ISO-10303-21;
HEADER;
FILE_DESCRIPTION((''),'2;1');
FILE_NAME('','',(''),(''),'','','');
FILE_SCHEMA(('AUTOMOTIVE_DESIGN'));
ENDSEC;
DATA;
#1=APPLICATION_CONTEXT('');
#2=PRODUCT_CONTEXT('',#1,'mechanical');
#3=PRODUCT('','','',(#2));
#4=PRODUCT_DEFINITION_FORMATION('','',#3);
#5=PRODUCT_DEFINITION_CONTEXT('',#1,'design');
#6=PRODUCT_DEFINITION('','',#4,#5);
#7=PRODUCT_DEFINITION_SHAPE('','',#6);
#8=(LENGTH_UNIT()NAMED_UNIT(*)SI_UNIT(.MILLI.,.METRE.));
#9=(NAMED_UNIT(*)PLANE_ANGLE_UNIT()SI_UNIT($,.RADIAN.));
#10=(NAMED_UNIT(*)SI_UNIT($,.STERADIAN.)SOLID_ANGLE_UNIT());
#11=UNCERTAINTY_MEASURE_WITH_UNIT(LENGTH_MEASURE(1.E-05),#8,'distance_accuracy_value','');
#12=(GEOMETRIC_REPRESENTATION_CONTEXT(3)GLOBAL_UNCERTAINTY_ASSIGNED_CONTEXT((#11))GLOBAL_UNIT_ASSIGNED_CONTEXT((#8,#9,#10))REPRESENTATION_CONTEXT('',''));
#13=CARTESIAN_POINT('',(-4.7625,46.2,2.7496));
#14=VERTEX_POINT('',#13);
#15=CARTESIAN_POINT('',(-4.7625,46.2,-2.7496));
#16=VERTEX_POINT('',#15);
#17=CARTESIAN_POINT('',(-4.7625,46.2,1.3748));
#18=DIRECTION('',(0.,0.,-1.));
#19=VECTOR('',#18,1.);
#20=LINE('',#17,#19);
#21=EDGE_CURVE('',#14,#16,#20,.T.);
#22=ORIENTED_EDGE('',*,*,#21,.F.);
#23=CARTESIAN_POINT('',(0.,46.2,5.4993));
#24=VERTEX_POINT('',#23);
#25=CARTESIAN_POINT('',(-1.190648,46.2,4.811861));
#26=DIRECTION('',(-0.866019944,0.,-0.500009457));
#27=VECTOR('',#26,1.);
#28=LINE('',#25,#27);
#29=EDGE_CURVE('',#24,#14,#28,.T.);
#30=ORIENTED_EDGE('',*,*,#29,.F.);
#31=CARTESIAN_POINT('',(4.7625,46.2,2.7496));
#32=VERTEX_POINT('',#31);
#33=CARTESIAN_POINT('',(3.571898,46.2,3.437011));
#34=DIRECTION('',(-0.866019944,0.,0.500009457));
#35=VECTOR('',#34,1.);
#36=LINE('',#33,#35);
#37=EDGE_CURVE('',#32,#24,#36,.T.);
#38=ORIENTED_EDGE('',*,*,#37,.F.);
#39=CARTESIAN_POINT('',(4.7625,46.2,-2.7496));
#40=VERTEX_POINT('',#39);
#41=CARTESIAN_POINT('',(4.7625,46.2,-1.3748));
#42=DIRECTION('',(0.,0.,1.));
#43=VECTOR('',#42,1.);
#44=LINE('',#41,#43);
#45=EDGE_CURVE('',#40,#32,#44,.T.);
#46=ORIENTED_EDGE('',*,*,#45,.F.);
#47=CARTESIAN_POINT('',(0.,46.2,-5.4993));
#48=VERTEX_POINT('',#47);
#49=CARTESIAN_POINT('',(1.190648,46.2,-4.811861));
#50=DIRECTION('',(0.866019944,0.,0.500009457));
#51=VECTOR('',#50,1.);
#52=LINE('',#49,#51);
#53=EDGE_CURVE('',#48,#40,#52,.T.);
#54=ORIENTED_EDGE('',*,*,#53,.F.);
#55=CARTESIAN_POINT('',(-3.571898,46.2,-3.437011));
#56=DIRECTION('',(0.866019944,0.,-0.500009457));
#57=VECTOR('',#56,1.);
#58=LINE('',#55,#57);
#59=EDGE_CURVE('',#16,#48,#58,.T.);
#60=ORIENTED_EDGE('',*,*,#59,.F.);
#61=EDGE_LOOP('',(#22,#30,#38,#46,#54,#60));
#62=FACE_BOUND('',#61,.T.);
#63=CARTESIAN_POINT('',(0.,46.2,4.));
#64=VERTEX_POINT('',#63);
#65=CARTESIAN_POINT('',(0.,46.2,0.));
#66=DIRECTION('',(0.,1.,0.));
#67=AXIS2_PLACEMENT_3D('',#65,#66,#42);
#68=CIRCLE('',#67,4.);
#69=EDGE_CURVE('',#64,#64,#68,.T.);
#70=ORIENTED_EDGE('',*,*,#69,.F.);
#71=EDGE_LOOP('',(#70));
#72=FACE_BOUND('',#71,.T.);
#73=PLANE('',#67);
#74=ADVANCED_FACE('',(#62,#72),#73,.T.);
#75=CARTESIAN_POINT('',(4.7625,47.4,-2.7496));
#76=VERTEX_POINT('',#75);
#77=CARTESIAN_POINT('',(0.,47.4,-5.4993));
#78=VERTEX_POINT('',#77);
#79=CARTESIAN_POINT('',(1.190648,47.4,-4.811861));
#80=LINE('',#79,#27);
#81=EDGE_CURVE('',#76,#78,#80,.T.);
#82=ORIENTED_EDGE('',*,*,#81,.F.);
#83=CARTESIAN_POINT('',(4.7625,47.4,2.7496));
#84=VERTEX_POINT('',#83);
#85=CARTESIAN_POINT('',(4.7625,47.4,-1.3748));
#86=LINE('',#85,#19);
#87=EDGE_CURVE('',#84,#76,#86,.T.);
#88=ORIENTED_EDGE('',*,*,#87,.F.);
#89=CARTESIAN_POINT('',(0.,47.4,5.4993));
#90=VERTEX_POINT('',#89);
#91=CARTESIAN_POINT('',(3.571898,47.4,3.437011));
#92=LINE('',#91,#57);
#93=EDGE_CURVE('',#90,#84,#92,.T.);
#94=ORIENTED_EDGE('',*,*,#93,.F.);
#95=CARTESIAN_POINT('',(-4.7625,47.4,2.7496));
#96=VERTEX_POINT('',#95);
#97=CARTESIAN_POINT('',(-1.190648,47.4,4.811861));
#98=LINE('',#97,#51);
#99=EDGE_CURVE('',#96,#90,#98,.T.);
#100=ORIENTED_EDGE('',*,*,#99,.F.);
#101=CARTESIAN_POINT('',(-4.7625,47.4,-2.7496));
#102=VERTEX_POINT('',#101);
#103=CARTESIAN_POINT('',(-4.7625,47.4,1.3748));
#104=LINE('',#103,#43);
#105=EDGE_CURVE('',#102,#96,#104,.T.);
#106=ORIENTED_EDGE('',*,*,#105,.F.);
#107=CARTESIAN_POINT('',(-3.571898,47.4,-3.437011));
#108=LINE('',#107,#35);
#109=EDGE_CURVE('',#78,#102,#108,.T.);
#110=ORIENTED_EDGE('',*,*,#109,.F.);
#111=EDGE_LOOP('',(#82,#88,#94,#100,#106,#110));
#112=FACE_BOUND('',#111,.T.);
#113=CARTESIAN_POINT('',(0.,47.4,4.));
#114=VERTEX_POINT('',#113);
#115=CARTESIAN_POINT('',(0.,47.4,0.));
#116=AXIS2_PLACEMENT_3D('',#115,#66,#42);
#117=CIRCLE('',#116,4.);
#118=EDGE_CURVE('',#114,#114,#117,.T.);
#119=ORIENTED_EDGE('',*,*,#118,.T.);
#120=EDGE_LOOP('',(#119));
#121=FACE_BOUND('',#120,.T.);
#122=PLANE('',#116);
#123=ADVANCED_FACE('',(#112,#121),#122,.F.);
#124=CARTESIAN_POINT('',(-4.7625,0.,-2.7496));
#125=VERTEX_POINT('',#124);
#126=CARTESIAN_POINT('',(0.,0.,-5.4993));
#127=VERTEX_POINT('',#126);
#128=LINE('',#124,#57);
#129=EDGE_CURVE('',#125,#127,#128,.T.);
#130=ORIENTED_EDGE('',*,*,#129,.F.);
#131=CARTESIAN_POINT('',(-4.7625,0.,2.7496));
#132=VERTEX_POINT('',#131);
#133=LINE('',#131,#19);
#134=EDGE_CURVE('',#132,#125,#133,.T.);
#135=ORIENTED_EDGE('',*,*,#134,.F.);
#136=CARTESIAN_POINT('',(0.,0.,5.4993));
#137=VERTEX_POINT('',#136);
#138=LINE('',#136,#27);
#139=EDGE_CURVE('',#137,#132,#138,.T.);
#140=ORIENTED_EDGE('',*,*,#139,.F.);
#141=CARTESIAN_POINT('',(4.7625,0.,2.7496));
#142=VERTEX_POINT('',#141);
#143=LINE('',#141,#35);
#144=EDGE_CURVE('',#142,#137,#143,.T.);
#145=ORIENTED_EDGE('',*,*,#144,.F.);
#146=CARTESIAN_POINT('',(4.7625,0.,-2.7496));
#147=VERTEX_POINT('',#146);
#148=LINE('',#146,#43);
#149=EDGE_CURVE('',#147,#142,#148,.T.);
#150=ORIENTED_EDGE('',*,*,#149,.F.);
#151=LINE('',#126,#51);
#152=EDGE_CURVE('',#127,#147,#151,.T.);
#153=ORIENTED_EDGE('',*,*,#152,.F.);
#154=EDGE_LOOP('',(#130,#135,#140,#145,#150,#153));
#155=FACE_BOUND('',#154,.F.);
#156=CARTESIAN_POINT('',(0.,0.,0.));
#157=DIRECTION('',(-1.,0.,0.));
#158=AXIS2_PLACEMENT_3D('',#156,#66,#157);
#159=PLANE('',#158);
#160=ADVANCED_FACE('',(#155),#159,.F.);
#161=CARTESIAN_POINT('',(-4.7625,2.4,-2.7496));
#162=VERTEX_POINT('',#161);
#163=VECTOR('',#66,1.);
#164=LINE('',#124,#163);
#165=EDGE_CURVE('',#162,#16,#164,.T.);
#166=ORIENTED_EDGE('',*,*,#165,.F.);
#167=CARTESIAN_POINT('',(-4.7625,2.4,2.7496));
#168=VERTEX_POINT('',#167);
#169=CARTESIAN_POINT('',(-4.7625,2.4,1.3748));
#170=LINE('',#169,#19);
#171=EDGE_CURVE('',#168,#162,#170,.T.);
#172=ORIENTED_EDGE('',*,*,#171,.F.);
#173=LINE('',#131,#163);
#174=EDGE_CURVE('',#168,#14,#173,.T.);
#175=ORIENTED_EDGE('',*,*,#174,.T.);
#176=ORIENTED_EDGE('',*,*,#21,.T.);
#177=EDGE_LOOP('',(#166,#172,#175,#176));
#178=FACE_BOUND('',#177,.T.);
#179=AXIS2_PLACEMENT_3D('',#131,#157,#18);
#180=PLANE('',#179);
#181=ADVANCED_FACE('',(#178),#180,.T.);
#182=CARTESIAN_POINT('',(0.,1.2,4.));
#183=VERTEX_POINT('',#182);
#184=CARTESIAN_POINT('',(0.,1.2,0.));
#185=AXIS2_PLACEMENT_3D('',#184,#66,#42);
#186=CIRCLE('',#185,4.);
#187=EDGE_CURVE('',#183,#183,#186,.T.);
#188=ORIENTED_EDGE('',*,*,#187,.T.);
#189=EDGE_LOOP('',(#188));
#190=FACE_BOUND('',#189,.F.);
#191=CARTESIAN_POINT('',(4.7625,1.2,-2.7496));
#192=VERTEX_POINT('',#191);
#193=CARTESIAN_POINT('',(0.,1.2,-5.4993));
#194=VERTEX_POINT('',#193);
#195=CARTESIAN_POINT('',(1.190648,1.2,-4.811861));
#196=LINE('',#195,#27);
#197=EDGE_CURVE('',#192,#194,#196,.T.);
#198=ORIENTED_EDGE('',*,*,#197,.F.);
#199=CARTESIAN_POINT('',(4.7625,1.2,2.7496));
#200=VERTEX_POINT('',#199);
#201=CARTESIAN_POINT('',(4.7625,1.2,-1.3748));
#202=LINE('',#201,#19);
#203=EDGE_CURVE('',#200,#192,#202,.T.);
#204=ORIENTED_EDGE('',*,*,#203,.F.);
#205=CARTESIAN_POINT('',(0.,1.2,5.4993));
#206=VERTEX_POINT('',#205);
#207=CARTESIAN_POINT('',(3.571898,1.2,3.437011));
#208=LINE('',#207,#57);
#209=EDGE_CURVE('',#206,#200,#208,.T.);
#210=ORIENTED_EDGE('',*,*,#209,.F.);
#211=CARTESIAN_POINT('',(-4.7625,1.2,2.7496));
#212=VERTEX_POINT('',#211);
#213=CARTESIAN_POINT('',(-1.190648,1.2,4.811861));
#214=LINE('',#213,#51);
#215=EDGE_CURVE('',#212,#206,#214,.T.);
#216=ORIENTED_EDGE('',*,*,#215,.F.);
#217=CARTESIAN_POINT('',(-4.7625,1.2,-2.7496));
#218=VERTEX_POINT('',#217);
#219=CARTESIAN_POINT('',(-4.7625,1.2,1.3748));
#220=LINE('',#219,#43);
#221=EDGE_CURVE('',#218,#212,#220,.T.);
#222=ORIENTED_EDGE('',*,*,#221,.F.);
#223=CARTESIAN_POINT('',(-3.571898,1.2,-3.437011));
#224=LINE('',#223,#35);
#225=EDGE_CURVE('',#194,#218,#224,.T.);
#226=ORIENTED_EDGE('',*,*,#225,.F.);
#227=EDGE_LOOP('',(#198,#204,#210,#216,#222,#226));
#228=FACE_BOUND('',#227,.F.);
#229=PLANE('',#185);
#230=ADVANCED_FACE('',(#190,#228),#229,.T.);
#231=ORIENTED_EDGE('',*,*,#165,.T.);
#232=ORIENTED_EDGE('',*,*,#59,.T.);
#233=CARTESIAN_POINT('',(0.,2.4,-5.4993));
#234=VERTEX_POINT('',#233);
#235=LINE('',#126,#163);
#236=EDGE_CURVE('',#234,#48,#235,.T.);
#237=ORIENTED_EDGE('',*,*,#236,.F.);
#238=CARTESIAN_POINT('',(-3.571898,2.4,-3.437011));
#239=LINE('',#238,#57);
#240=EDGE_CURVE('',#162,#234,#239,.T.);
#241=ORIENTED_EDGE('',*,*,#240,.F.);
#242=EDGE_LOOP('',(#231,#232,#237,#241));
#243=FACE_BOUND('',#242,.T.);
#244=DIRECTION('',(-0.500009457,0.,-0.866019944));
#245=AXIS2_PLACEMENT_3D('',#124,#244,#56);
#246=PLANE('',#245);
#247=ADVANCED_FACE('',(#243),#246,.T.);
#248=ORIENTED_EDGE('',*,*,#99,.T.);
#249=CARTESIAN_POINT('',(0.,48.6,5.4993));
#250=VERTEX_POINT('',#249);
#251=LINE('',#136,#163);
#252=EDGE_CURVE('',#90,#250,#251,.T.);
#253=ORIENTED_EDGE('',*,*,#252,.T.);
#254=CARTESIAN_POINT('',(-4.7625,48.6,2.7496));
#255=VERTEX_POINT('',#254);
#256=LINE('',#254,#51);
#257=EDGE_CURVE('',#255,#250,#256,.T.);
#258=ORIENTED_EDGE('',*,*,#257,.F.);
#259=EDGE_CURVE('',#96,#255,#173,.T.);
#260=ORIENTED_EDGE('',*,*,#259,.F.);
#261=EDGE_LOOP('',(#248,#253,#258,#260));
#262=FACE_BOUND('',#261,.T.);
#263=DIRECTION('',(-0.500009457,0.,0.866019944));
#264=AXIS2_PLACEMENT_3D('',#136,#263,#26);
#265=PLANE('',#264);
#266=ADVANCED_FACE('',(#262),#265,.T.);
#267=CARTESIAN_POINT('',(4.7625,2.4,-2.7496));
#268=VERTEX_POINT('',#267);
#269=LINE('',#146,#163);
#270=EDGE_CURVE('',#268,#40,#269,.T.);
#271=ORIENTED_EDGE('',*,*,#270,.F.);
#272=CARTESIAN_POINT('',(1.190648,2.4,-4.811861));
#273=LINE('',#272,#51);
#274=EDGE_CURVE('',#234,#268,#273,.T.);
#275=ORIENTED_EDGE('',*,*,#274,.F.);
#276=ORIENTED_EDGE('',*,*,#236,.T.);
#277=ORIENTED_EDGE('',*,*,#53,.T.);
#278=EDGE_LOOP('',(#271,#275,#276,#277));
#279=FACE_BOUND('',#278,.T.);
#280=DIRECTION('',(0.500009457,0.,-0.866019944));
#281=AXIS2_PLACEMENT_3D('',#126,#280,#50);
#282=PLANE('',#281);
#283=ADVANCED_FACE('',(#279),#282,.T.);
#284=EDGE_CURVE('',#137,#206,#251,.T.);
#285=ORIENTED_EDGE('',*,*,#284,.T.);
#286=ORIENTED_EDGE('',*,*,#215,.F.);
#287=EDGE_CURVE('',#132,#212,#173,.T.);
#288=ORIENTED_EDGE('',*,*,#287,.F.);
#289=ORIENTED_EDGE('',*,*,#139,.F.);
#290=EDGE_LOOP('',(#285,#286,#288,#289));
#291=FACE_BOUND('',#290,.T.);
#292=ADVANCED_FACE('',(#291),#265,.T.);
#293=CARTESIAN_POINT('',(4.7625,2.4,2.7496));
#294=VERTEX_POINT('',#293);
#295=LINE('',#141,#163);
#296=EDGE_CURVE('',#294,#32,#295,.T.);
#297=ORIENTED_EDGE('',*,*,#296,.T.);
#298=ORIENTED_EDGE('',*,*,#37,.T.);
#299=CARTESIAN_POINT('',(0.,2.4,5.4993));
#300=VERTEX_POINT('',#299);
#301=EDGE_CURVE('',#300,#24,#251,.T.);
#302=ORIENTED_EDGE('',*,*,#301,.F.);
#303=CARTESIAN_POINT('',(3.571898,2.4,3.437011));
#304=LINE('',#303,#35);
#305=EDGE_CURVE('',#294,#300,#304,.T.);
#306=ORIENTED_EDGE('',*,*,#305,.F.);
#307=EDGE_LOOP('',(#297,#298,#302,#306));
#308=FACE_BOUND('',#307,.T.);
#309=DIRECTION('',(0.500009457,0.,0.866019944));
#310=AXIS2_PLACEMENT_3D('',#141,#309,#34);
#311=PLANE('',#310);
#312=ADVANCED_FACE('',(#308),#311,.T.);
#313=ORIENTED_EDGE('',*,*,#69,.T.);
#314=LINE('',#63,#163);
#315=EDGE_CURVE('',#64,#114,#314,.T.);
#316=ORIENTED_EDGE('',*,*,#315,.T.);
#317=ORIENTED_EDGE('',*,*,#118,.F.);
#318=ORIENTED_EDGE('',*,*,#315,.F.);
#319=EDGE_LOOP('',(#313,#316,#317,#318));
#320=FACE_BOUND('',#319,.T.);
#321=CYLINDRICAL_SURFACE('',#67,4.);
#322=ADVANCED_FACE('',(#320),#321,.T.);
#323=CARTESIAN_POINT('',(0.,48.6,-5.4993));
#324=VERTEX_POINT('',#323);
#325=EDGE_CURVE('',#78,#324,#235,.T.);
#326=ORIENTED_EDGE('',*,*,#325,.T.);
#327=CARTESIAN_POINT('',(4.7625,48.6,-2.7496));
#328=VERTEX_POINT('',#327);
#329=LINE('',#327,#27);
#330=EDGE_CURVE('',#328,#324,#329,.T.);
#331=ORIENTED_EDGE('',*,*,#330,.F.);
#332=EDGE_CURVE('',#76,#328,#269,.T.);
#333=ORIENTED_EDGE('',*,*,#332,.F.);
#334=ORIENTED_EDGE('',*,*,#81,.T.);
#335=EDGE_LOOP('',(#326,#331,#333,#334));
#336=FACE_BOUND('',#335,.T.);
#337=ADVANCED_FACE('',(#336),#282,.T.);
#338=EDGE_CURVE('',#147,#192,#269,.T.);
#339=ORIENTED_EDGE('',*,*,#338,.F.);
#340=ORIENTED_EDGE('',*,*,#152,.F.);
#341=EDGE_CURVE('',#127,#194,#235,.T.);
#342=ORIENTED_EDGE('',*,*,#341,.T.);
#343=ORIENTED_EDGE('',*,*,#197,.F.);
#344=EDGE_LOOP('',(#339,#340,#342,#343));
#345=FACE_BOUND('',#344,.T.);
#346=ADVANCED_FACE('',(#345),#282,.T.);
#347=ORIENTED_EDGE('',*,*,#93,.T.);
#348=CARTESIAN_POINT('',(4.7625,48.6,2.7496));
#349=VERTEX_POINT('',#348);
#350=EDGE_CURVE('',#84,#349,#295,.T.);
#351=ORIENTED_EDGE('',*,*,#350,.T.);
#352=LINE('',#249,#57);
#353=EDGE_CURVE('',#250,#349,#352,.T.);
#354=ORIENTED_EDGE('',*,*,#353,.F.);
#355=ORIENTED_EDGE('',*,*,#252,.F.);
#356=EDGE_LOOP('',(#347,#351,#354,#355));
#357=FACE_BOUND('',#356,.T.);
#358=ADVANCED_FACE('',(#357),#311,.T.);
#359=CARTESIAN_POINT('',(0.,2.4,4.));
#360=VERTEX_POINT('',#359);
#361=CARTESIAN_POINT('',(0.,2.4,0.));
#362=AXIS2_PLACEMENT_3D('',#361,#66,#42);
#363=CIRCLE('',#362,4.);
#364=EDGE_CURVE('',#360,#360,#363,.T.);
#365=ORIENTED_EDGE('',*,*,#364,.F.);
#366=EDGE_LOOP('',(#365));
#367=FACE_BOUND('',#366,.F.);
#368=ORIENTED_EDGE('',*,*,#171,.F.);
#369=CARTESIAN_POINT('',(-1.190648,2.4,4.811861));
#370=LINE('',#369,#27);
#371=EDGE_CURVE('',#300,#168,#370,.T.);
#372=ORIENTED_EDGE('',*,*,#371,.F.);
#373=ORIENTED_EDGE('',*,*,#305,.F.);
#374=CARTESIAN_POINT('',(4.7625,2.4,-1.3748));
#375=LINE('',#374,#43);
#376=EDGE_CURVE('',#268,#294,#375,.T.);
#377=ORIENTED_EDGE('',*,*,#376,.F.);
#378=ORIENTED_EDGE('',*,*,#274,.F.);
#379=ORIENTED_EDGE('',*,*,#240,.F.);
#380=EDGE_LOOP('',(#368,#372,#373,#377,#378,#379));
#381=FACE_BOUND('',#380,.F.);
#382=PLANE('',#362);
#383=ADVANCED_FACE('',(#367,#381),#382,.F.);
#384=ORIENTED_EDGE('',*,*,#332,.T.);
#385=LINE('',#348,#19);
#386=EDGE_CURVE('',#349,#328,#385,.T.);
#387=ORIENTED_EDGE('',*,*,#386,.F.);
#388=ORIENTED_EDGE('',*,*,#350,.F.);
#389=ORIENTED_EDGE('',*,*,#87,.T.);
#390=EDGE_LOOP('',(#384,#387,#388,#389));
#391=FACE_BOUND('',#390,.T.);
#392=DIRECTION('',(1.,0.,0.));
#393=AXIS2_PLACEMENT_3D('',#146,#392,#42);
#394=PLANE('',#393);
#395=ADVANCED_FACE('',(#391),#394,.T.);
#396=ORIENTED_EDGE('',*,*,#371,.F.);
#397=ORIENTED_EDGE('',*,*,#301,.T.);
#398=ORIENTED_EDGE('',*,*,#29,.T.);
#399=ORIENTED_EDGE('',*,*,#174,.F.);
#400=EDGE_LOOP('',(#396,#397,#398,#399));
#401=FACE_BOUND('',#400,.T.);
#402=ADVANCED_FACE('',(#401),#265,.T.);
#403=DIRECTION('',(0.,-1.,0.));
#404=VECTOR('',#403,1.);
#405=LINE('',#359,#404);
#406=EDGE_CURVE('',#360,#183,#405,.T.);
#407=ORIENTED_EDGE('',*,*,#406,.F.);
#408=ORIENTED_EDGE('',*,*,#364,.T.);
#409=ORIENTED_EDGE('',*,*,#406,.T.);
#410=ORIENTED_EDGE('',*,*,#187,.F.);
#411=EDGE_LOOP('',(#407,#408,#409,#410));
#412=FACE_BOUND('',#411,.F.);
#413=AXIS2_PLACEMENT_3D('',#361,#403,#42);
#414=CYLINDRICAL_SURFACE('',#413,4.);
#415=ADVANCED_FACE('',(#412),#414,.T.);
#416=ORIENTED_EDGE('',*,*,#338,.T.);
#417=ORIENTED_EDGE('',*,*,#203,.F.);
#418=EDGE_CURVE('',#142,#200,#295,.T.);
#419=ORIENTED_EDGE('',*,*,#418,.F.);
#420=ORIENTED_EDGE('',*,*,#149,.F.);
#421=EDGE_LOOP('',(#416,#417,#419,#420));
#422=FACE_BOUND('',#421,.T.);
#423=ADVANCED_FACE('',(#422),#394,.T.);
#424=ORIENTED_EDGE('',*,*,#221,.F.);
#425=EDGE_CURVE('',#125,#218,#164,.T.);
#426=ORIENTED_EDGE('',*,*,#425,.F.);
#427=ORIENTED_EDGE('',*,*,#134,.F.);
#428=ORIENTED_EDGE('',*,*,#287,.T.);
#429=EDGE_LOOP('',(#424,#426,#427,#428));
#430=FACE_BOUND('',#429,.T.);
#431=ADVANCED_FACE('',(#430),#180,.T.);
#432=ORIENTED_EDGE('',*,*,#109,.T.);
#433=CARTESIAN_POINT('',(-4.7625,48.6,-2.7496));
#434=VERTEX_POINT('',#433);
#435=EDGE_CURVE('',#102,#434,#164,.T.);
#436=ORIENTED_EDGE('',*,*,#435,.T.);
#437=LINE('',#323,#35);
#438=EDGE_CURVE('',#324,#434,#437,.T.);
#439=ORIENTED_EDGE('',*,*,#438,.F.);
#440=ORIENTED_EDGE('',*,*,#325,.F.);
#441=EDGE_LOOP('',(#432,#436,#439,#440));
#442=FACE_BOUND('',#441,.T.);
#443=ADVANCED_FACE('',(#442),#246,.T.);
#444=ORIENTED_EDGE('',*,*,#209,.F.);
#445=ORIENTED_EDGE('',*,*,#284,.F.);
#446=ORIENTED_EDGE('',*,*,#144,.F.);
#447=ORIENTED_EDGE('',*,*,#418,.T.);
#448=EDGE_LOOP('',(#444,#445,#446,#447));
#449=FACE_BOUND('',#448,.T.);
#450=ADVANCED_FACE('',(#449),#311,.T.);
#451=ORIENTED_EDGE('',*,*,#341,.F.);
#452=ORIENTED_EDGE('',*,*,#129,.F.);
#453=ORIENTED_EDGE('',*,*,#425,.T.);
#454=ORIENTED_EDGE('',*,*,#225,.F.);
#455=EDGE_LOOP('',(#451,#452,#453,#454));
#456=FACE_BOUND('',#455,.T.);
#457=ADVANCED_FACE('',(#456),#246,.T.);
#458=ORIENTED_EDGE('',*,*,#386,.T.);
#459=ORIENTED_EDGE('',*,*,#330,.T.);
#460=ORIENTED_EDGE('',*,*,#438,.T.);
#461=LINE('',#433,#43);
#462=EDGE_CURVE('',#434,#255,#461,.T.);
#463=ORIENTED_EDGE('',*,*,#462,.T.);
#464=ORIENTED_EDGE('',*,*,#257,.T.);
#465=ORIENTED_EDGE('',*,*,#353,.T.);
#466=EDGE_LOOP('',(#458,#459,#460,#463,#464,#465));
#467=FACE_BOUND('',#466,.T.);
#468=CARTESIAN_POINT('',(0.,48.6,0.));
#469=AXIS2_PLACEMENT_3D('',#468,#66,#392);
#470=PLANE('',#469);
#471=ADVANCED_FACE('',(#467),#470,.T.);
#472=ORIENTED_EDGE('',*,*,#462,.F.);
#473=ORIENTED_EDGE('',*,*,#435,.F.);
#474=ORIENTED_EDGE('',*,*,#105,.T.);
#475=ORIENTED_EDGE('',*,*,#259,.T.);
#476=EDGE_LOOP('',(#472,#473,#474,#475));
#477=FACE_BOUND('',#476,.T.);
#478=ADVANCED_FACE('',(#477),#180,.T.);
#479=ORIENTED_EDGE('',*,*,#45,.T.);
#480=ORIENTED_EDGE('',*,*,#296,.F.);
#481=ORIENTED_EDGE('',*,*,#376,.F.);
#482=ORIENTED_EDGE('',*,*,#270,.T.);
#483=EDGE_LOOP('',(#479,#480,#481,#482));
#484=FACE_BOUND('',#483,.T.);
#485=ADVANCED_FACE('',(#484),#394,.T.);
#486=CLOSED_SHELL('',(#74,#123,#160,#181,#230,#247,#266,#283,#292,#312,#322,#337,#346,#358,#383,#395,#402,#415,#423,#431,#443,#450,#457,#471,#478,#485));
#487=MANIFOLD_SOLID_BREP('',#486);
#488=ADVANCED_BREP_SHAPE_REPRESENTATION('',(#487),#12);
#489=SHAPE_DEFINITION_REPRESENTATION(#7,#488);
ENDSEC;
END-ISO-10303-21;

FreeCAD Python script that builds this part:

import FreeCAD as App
import Part
import Sketcher

V = App.Vector
Q = App.Units.Quantity


def add_polygon(sketch, points):
    """Adds a closed chain of lines whose ends are joined by coincident constraints."""
    first, n = sketch.GeometryCount, len(points)
    for a, b in zip(points, points[1:] + points[:1]):
        sketch.addGeometry(Part.LineSegment(App.Vector(*a, 0), App.Vector(*b, 0)), False)
    for i in range(n):
        sketch.addConstraint(Sketcher.Constraint("Coincident", first + i, 2, first + (i + 1) % n, 1))

doc = App.newDocument("Part")
body = doc.addObject("PartDesign::Body", "Body")

# Sketch on XZ plane
sketch1 = body.newObject("Sketcher::SketchObject", "Sketch")
sketch1.AttachmentSupport = (doc.getObject("XZ_Plane"), [""])
sketch1.MapMode = "FlatFace"
add_polygon(sketch1, [(-5, -3), (-5, 3), (0, 5), (5, 3), (5, -3), (0, -5)])  # lines 0-5
sketch1.addConstraint([
    Sketcher.Constraint("Vertical", 0),
    Sketcher.Constraint("Vertical", 3),
    Sketcher.Constraint("Symmetric", 0, 2, 3, 2, -1, 1),
    Sketcher.Constraint("Symmetric", 1, 2, 4, 2, -1, 1),
    Sketcher.Constraint("PointOnObject", 1, 2, -2),
    Sketcher.Constraint("Parallel", 2, 5),
    Sketcher.Constraint("Horizontal", 0, 2, 2, 2),
    Sketcher.Constraint("Angle", 1, Q("30.0006 deg")),
    Sketcher.Constraint("DistanceX", 0, 2, 2, 2, Q("9.525 mm")),
    Sketcher.Constraint("DistanceY", 0, 1, 0, 2, Q("5.4992 mm")),
])
pad1 = body.newObject("PartDesign::Pad", "Pad")
pad1.Profile = sketch1
pad1.Length = 49.8
pad1.Reversed = True

# Sketch on YZ plane
sketch2 = body.newObject("Sketcher::SketchObject", "Sketch001")
sketch2.AttachmentSupport = (doc.getObject("YZ_Plane"), [""])
sketch2.MapMode = "FlatFace"
add_polygon(sketch2, [(2.4, 14), (1.2, 14), (1.2, 4), (2.4, 4)])  # lines 0-3
add_polygon(sketch2, [(47.4, 4), (47.4, 14), (46.2, 14), (46.2, 4)])  # lines 4-7
sketch2.addConstraint([
    Sketcher.Constraint("Horizontal", 0),
    Sketcher.Constraint("Vertical", 1),
    Sketcher.Constraint("Horizontal", 2),
    Sketcher.Constraint("Vertical", 3),
    Sketcher.Constraint("Vertical", 4),
    Sketcher.Constraint("Horizontal", 5),
    Sketcher.Constraint("Vertical", 6),
    Sketcher.Constraint("Horizontal", 7),
    Sketcher.Constraint("Horizontal", 3, 2, 4, 2),
    Sketcher.Constraint("Horizontal", 2, 2, 6, 2),
    Sketcher.Constraint("Equal", 2, 5),
    Sketcher.Constraint("DistanceY", 1, 2, 1, 1, Q("10 mm")),
    Sketcher.Constraint("DistanceX", 0, 2, 0, 1, Q("1.2 mm")),
    Sketcher.Constraint("DistanceY", -1, 1, 1, 2, Q("4 mm")),
    Sketcher.Constraint("DistanceX", -1, 1, 0, 2, Q("1.2 mm")),
    Sketcher.Constraint("DistanceX", 3, 2, 5, 2, Q("43.8 mm")),
])
groove = body.newObject("PartDesign::Groove", "Groove")
groove.Profile = sketch2
groove.ReferenceAxis = (sketch2, ["H_Axis"])
groove.Angle = 360

# Sketch on XZ plane
sketch3 = body.newObject("Sketcher::SketchObject", "Sketch002")
sketch3.AttachmentSupport = (doc.getObject("XZ_Plane"), [""])
sketch3.MapMode = "FlatFace"
sketch3.AttachmentOffset = App.Placement(V(0, 0, -49.8), App.Rotation())
add_polygon(sketch3, [(-5, 3), (0, 5), (5, 3), (5, -3), (0, -5), (-5, -3)])  # lines 0-5
sketch3.addConstraint([
    Sketcher.Constraint("Vertical", 2),
    Sketcher.Constraint("Vertical", 5),
    Sketcher.Constraint("Symmetric", 0, 2, 3, 2, -1, 1),
    Sketcher.Constraint("Symmetric", 1, 2, 4, 2, -1, 1),
    Sketcher.Constraint("PointOnObject", 0, 2, -2),
    Sketcher.Constraint("Parallel", 0, 3),
    Sketcher.Constraint("Horizontal", 2, 2, 4, 2),
    Sketcher.Constraint("Angle", 0, Q("30.0006 deg")),
    Sketcher.Constraint("DistanceY", 2, 2, 2, 1, Q("5.4992 mm")),
    Sketcher.Constraint("DistanceY", 2, 2, 0, 2, Q("8.249 mm")),
])
pocket1 = body.newObject("PartDesign::Pocket", "Pocket")
pocket1.Profile = sketch3
pocket1.Length = 1.2
pocket1.Reversed = True

doc.recompute()
